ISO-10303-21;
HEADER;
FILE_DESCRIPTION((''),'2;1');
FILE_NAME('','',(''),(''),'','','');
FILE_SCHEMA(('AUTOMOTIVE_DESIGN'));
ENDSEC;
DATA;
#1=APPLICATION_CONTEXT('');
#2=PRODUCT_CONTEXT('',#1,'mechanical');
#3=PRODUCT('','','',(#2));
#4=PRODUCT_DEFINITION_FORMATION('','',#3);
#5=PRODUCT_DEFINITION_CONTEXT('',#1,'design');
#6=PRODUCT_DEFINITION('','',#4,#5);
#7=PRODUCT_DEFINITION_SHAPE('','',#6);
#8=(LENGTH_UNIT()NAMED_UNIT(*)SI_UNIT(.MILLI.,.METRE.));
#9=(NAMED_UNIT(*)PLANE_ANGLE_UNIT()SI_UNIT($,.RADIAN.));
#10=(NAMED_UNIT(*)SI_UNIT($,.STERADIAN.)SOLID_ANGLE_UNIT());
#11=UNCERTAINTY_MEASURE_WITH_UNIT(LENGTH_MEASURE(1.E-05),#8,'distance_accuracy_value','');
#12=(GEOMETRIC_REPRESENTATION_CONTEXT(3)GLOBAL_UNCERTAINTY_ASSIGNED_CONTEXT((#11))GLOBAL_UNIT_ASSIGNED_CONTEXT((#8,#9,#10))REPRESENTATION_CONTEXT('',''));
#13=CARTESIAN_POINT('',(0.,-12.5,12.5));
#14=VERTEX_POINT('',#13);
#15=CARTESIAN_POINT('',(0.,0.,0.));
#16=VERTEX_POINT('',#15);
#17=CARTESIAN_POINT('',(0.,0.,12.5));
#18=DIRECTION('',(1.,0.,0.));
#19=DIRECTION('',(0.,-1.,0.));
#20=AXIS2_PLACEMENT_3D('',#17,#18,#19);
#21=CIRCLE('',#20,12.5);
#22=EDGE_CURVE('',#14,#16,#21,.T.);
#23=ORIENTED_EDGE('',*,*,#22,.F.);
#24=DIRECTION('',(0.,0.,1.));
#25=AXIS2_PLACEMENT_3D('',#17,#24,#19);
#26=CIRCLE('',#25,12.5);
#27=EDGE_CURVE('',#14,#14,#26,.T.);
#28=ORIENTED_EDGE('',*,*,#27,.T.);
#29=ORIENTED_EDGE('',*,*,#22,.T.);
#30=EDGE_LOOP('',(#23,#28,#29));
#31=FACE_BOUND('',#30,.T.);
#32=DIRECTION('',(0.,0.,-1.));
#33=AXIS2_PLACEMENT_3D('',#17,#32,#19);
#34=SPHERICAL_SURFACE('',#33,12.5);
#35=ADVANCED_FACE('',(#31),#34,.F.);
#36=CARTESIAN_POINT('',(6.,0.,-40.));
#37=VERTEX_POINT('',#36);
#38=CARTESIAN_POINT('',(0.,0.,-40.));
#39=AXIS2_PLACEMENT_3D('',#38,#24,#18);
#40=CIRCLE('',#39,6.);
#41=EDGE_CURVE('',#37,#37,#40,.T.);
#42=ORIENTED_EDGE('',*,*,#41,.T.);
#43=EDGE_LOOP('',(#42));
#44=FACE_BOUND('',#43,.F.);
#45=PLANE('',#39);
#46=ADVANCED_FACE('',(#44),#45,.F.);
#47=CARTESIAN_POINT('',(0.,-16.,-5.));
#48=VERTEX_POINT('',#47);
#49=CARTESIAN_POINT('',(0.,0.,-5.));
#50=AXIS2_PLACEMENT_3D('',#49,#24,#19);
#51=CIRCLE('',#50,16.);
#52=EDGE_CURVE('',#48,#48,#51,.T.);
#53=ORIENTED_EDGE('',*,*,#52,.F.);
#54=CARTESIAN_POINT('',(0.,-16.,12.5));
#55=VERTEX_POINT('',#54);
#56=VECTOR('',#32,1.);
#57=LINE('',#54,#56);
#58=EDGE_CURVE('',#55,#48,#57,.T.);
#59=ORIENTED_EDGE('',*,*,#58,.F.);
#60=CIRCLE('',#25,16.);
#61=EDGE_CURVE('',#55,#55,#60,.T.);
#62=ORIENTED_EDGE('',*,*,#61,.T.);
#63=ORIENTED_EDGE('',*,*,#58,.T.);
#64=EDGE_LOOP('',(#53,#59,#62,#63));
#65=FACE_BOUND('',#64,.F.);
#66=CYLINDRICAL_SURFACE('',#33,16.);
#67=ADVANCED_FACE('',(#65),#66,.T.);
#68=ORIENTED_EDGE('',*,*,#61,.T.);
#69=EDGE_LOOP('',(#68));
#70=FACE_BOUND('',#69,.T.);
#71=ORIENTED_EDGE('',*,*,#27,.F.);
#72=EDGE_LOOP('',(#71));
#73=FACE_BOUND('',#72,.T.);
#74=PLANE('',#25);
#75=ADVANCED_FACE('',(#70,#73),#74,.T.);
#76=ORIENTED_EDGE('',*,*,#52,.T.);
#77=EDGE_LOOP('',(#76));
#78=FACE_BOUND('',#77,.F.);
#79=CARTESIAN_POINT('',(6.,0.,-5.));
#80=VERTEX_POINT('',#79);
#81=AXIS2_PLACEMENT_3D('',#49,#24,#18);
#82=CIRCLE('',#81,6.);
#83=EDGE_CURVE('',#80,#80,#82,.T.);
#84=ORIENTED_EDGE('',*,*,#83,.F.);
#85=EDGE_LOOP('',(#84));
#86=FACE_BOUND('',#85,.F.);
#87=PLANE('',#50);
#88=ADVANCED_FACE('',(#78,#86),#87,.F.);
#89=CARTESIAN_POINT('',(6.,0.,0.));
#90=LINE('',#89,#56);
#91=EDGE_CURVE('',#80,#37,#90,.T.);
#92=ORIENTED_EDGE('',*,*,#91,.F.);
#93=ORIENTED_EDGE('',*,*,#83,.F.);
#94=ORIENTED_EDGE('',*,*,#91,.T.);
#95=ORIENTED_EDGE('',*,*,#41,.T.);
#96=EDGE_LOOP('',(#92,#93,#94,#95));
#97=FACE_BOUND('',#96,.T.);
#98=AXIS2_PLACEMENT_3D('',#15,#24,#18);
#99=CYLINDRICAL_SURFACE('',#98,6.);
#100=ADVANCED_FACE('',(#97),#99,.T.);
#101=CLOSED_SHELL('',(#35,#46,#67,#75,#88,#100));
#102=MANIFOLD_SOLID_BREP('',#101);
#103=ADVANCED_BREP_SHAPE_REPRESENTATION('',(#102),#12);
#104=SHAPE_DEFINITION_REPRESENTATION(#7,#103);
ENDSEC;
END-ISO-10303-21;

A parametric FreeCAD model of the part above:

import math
import FreeCAD as App
import Part
import Sketcher
from FreeCAD import Vector
Q = App.Units.Quantity

doc = App.newDocument("Part")
params = doc.addObject("Spreadsheet::Sheet", "Params")
for row, (alias, value) in enumerate([
    ("sketch1_diameter", "12 mm"),
    ("pad1_length", "40 mm"),
    ("sketch2_radius", "12.5 mm"),
    ("sketch2_height", "5 mm"),
    ("sketch2_width", "3.5 mm"),
    ("revolution_angle", "360 deg"),
], start=1):
    params.set(f"A{row}", alias)
    params.set(f"B{row}", "=" + value)
    params.setAlias(f"B{row}", alias)

body = doc.addObject("PartDesign::Body", "Body")

# Sketch on XY plane
sketch1 = doc.addObject("Sketcher::SketchObject", "Sketch")
body.addObject(sketch1)
sketch1.AttachmentSupport = (doc.XY_Plane, [""])
sketch1.MapMode = "FlatFace"
sketch1.addGeometry(Part.Circle(Vector(0, 0, 0), Vector(0, 0, 1), 6), False)
sketch1.addConstraint(Sketcher.Constraint("Coincident", 0, 3, -1, 1))
sketch1.addConstraint(Sketcher.Constraint("Diameter", 0, Q("12 mm")))
sketch1.setExpression("Constraints[1]", "Params.sketch1_diameter")
pad1 = doc.addObject("PartDesign::Pad", "Pad")
body.addObject(pad1)
pad1.Profile = sketch1
pad1.setExpression("Length", "Params.pad1_length")
pad1.Reversed = True

# Sketch on YZ plane
sketch2 = doc.addObject("Sketcher::SketchObject", "Sketch001")
body.addObject(sketch2)
sketch2.AttachmentSupport = (doc.YZ_Plane, [""])
sketch2.MapMode = "FlatFace"
sketch2.addGeometry(Part.LineSegment(Vector(-12.5, 12.5, 0), Vector(-16, 12.5, 0)), False)
sketch2.addGeometry(Part.LineSegment(Vector(-16, 12.5, 0), Vector(-16, -5, 0)), False)
sketch2.addGeometry(Part.LineSegment(Vector(-16, -5, 0), Vector(0, -5, 0)), False)
sketch2.addGeometry(Part.LineSegment(Vector(0, -5, 0), Vector(0, 0, 0)), False)
sketch2.addGeometry(Part.ArcOfCircle(Part.Circle(Vector(0, 12.5, 0), Vector(0, 0, 1), 12.5), math.radians(180), math.radians(270)), False)
sketch2.addConstraint(Sketcher.Constraint("Coincident", 0, 2, 1, 1))
sketch2.addConstraint(Sketcher.Constraint("Coincident", 1, 2, 2, 1))
sketch2.addConstraint(Sketcher.Constraint("Coincident", 2, 2, 3, 1))
sketch2.addConstraint(Sketcher.Constraint("Coincident", 3, 2, 4, 2))
sketch2.addConstraint(Sketcher.Constraint("Coincident", 4, 1, 0, 1))
sketch2.addConstraint(Sketcher.Constraint("Horizontal", 0))
sketch2.addConstraint(Sketcher.Constraint("Vertical", 1))
sketch2.addConstraint(Sketcher.Constraint("Horizontal", 2))
sketch2.addConstraint(Sketcher.Constraint("Vertical", 3))
sketch2.addConstraint(Sketcher.Constraint("Coincident", 3, 2, -1, 1))
sketch2.addConstraint(Sketcher.Constraint("PointOnObject", 4, 3, -2))
sketch2.addConstraint(Sketcher.Constraint("Horizontal", 4, 3, 0, 2))
sketch2.addConstraint(Sketcher.Constraint("Radius", 4, Q("12.5 mm")))
sketch2.addConstraint(Sketcher.Constraint("DistanceY", 3, 1, 3, 2, Q("5 mm")))
sketch2.addConstraint(Sketcher.Constraint("DistanceX", 0, 2, 0, 1, Q("3.5 mm")))
sketch2.setExpression("Constraints[12]", "Params.sketch2_radius")
sketch2.setExpression("Constraints[13]", "Params.sketch2_height")
sketch2.setExpression("Constraints[14]", "Params.sketch2_width")
revolution = doc.addObject("PartDesign::Revolution", "Revolution")
body.addObject(revolution)
revolution.Profile = sketch2
revolution.ReferenceAxis = (sketch2, ["V_Axis"])
revolution.setExpression("Angle", "Params.revolution_angle")

doc.recompute()
